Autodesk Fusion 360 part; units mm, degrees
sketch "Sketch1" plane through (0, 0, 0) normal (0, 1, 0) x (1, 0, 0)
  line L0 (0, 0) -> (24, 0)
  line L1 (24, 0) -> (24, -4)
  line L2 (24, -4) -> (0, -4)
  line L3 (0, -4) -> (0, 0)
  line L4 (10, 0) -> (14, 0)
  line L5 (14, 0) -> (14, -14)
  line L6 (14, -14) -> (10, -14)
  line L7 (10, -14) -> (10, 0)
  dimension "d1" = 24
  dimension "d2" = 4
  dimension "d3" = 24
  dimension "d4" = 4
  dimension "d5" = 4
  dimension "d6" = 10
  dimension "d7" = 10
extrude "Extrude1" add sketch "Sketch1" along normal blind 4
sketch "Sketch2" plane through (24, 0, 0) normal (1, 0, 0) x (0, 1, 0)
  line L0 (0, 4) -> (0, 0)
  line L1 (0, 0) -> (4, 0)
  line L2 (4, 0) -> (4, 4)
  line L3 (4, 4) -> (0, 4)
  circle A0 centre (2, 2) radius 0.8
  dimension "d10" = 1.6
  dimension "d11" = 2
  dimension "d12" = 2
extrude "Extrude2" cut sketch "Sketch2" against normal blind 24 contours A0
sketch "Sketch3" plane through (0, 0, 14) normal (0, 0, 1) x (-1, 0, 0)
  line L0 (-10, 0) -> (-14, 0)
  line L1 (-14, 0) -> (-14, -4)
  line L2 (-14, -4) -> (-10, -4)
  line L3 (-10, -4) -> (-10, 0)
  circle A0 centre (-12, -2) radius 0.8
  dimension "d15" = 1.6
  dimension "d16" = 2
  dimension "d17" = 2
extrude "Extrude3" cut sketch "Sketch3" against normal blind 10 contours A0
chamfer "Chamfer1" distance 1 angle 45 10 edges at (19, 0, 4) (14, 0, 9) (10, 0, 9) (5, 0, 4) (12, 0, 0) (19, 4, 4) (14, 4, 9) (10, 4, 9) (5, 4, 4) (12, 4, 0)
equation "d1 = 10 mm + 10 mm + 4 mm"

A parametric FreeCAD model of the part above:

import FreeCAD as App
import Part
import Sketcher
from FreeCAD import Vector
Q = App.Units.Quantity


def edges_at(feature, points):
    """Names of the edges that pass closest to the given points."""
    edges = feature.Shape.Edges
    near = lambda p: min(range(len(edges)), key=lambda i: edges[i].distToShape(Part.Vertex(*p))[0])
    return sorted({f"Edge{near(p) + 1}" for p in points})


def add_polygon(sketch, points):
    """Adds a closed chain of lines whose ends are joined by coincident constraints."""
    first, n = sketch.GeometryCount, len(points)
    for a, b in zip(points, points[1:] + points[:1]):
        sketch.addGeometry(Part.LineSegment(App.Vector(*a, 0), App.Vector(*b, 0)), False)
    for i in range(n):
        sketch.addConstraint(Sketcher.Constraint("Coincident", first + i, 2, first + (i + 1) % n, 1))

doc = App.newDocument("Part")
params = doc.addObject("Spreadsheet::Sheet", "Params")
for row, (alias, value) in enumerate([
    ("sketch1_width", "10 mm"),
    ("sketch1_width2", "4 mm"),
    ("pad1_length", "4 mm"),
    ("sketch2_diameter", "1.6 mm"),
    ("pocket1_length", "24 mm"),
    ("sketch3_diameter", "1.6 mm"),
    ("pocket2_length", "10 mm"),
    ("chamfer_size", "1 mm"),
], start=1):
    params.set(f"A{row}", alias)
    params.set(f"B{row}", "=" + value)
    params.setAlias(f"B{row}", alias)

body = doc.addObject("PartDesign::Body", "Body")

sketch1 = body.newObject("Sketcher::SketchObject", "Sketch")
sketch1.AttachmentSupport = (doc.getObject("XZ_Plane"), [""])
sketch1.MapMode = "FlatFace"
add_polygon(sketch1, [(0, 0), (0, 4), (10, 4), (10, 14), (14, 14), (14, 4), (24, 4), (24, 0)])
sketch1.addConstraint([
    Sketcher.Constraint("Vertical", 0),
    Sketcher.Constraint("Horizontal", 1),
    Sketcher.Constraint("Vertical", 2),
    Sketcher.Constraint("Horizontal", 3),
    Sketcher.Constraint("Vertical", 4),
    Sketcher.Constraint("Horizontal", 5),
    Sketcher.Constraint("Vertical", 6),
    Sketcher.Constraint("Horizontal", 7),
    Sketcher.Constraint("Coincident", 7, 2, -1, 1),
    Sketcher.Constraint("Horizontal", 1, 2, 4, 2),
    Sketcher.Constraint("Equal", 1, 5),
    Sketcher.Constraint("Equal", 3, 0),
    Sketcher.Constraint("Equal", 5, 2),
    Sketcher.Constraint("DistanceX", 1, 1, 1, 2, Q("10 mm")),
    Sketcher.Constraint("DistanceX", 3, 1, 3, 2, Q("4 mm")),
])
sketch1.setExpression("Constraints[21]", "Params.sketch1_width")
sketch1.setExpression("Constraints[22]", "Params.sketch1_width2")
pad1 = body.newObject("PartDesign::Pad", "Pad")
pad1.Profile = sketch1
pad1.setExpression("Length", "Params.pad1_length")
pad1.Reversed = True

sketch2 = body.newObject("Sketcher::SketchObject", "Sketch001")
sketch2.AttachmentSupport = (doc.getObject("YZ_Plane"), [""])
sketch2.MapMode = "FlatFace"
sketch2.AttachmentOffset = App.Placement(Vector(0, 0, 24), App.Rotation())
sketch2.addGeometry(Part.Circle(Vector(2, 2, 0), Vector(0, 0, 1), 0.8), False)
sketch2.addConstraint([
    Sketcher.Constraint("Diameter", 0, Q("1.6 mm")),
    Sketcher.Constraint("DistanceX", -1, 1, 0, 3, Q("2 mm")),
    Sketcher.Constraint("DistanceY", -1, 1, 0, 3, Q("2 mm")),
])
sketch2.setExpression("Constraints[0]", "Params.sketch2_diameter")
pocket1 = body.newObject("PartDesign::Pocket", "Pocket")
pocket1.Profile = sketch2
pocket1.setExpression("Length", "Params.pocket1_length")

sketch3 = body.newObject("Sketcher::SketchObject", "Sketch002")
sketch3.AttachmentSupport = (doc.getObject("XY_Plane"), [""])
sketch3.MapMode = "FlatFace"
sketch3.AttachmentOffset = App.Placement(Vector(0, 0, 14), App.Rotation())
sketch3.addGeometry(Part.Circle(Vector(12, 2, 0), Vector(0, 0, 1), 0.8), False)
sketch3.addConstraint([
    Sketcher.Constraint("Diameter", 0, Q("1.6 mm")),
    Sketcher.Constraint("DistanceY", -1, 1, 0, 3, Q("2 mm")),
    Sketcher.Constraint("DistanceX", -1, 1, 0, 3, Q("12 mm")),
])
sketch3.setExpression("Constraints[0]", "Params.sketch3_diameter")
pocket2 = body.newObject("PartDesign::Pocket", "Pocket001")
pocket2.Profile = sketch3
pocket2.setExpression("Length", "Params.pocket2_length")
doc.recompute()

chamfer = body.newObject("PartDesign::Chamfer", "Chamfer")
chamfer.Base = (pocket2, edges_at(pocket2, [
    (19, 0, 4),
    (14, 0, 9),
    (10, 0, 9),
    (5, 0, 4),
    (12, 0, 0),
    (19, 4, 4),
    (14, 4, 9),
    (10, 4, 9),
    (5, 4, 4),
    (12, 4, 0),
]))
chamfer.setExpression("Size", "Params.chamfer_size")

doc.recompute()
